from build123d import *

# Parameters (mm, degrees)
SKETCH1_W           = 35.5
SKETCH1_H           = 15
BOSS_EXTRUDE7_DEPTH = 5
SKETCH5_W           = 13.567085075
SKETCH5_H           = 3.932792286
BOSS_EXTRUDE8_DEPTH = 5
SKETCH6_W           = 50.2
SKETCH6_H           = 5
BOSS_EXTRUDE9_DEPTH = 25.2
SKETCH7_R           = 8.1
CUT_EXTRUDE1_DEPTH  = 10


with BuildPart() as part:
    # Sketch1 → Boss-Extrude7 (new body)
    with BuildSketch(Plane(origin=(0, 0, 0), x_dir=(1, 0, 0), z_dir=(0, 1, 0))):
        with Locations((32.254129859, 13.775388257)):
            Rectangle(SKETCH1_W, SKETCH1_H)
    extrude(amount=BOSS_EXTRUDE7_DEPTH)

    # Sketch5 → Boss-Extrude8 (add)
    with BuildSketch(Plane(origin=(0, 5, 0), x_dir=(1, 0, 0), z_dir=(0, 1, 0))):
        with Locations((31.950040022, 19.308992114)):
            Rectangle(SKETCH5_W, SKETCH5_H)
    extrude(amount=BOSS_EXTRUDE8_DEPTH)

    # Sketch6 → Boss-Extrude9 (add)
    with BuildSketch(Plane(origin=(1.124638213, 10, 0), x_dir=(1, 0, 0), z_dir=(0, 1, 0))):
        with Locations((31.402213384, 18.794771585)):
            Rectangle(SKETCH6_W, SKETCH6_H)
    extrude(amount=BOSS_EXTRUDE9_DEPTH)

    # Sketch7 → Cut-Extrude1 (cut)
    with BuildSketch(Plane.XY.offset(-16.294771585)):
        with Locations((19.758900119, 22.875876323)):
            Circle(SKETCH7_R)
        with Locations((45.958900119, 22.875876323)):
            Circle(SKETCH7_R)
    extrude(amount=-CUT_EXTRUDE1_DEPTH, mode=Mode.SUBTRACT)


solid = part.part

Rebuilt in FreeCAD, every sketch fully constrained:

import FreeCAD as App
import Part
import Sketcher

V = App.Vector


def add_polygon(sketch, points):
    """Adds a closed chain of lines whose ends are joined by coincident constraints."""
    first, n = sketch.GeometryCount, len(points)
    for a, b in zip(points, points[1:] + points[:1]):
        sketch.addGeometry(Part.LineSegment(App.Vector(*a, 0), App.Vector(*b, 0)), False)
    for i in range(n):
        sketch.addConstraint(Sketcher.Constraint("Coincident", first + i, 2, first + (i + 1) % n, 1))

doc = App.newDocument("Part")
body = doc.addObject("PartDesign::Body", "Body")

sketch1 = body.newObject("Sketcher::SketchObject", "Sketch")
sketch1.AttachmentSupport = (doc.getObject("XZ_Plane"), [""])
sketch1.MapMode = "FlatFace"
add_polygon(sketch1, [(14.50413, -21.275388), (14.50413, -6.275388), (50.00413, -6.275388), (50.00413, -21.275388)])
sketch1.addConstraint([
    Sketcher.Constraint("Vertical", 0),
    Sketcher.Constraint("Horizontal", 1),
    Sketcher.Constraint("Vertical", 2),
    Sketcher.Constraint("Horizontal", 3),
    Sketcher.Constraint("DistanceY", 0, 1, 0, 2, 15.0),
    Sketcher.Constraint("DistanceX", 1, 1, 1, 2, 35.5),
    Sketcher.Constraint("DistanceX", -1, 1, 0, 2, 14.50413),
    Sketcher.Constraint("DistanceY", 0, 2, -1, 1, 6.275388),
])
pad1 = body.newObject("PartDesign::Pad", "Pad")
pad1.Profile = sketch1
pad1.Length = 5
pad1.Reversed = True

sketch2 = body.newObject("Sketcher::SketchObject", "Sketch001")
sketch2.AttachmentSupport = (doc.getObject("XZ_Plane"), [""])
sketch2.MapMode = "FlatFace"
sketch2.AttachmentOffset = App.Placement(V(0, 0, -5), App.Rotation())
add_polygon(sketch2, [(25.166497, -21.275388), (25.166497, -17.342596), (38.733583, -17.342596), (38.733583, -21.275388)])
sketch2.addConstraint([
    Sketcher.Constraint("Vertical", 0),
    Sketcher.Constraint("Horizontal", 1),
    Sketcher.Constraint("Vertical", 2),
    Sketcher.Constraint("Horizontal", 3),
    Sketcher.Constraint("DistanceX", 1, 1, 1, 2, 13.567085),
    Sketcher.Constraint("DistanceY", 0, 1, 0, 2, 3.932792),
    Sketcher.Constraint("DistanceY", 2, 2, -1, 1, 21.275388),
    Sketcher.Constraint("DistanceX", -1, 1, 0, 2, 25.166497),
])
pad2 = body.newObject("PartDesign::Pad", "Pad001")
pad2.Profile = sketch2
pad2.Length = 5
pad2.Reversed = True

sketch3 = body.newObject("Sketcher::SketchObject", "Sketch002")
sketch3.AttachmentSupport = (doc.getObject("XZ_Plane"), [""])
sketch3.MapMode = "FlatFace"
sketch3.AttachmentOffset = App.Placement(V(0, 0, -10), App.Rotation())
add_polygon(sketch3, [(7.426852, -21.294772), (7.426852, -16.294772), (57.626852, -16.294772), (57.626852, -21.294772)])
sketch3.addConstraint([
    Sketcher.Constraint("Vertical", 0),
    Sketcher.Constraint("Horizontal", 1),
    Sketcher.Constraint("Vertical", 2),
    Sketcher.Constraint("Horizontal", 3),
    Sketcher.Constraint("DistanceY", 0, 1, 0, 2, 5.0),
    Sketcher.Constraint("DistanceX", 1, 1, 1, 2, 50.2),
    Sketcher.Constraint("DistanceX", -1, 1, 0, 2, 7.426852),
    Sketcher.Constraint("DistanceY", 0, 2, -1, 1, 16.294772),
])
pad3 = body.newObject("PartDesign::Pad", "Pad002")
pad3.Profile = sketch3
pad3.Length = 25.2
pad3.Reversed = True

sketch4 = body.newObject("Sketcher::SketchObject", "Sketch003")
sketch4.AttachmentSupport = (doc.getObject("XY_Plane"), [""])
sketch4.MapMode = "FlatFace"
sketch4.AttachmentOffset = App.Placement(V(0, 0, -16.294772), App.Rotation())
sketch4.addGeometry([
    Part.Circle(V(19.7589, 22.875876, 0), V(0, 0, 1), 8.1),
    Part.Circle(V(45.9589, 22.875876, 0), V(0, 0, 1), 8.1),
], False)
sketch4.addConstraint([
    Sketcher.Constraint("Equal", 0, 1),
    Sketcher.Constraint("Horizontal", 0, 3, 1, 3),
    Sketcher.Constraint("Diameter", 0, 16.2),
    Sketcher.Constraint("DistanceX", 0, 3, 1, 3, 26.2),
    Sketcher.Constraint("DistanceX", -1, 1, 0, 3, 19.7589),
    Sketcher.Constraint("DistanceY", -1, 1, 0, 3, 22.875876),
])
pocket1 = body.newObject("PartDesign::Pocket", "Pocket")
pocket1.Profile = sketch4
pocket1.Length = 10

doc.recompute()
